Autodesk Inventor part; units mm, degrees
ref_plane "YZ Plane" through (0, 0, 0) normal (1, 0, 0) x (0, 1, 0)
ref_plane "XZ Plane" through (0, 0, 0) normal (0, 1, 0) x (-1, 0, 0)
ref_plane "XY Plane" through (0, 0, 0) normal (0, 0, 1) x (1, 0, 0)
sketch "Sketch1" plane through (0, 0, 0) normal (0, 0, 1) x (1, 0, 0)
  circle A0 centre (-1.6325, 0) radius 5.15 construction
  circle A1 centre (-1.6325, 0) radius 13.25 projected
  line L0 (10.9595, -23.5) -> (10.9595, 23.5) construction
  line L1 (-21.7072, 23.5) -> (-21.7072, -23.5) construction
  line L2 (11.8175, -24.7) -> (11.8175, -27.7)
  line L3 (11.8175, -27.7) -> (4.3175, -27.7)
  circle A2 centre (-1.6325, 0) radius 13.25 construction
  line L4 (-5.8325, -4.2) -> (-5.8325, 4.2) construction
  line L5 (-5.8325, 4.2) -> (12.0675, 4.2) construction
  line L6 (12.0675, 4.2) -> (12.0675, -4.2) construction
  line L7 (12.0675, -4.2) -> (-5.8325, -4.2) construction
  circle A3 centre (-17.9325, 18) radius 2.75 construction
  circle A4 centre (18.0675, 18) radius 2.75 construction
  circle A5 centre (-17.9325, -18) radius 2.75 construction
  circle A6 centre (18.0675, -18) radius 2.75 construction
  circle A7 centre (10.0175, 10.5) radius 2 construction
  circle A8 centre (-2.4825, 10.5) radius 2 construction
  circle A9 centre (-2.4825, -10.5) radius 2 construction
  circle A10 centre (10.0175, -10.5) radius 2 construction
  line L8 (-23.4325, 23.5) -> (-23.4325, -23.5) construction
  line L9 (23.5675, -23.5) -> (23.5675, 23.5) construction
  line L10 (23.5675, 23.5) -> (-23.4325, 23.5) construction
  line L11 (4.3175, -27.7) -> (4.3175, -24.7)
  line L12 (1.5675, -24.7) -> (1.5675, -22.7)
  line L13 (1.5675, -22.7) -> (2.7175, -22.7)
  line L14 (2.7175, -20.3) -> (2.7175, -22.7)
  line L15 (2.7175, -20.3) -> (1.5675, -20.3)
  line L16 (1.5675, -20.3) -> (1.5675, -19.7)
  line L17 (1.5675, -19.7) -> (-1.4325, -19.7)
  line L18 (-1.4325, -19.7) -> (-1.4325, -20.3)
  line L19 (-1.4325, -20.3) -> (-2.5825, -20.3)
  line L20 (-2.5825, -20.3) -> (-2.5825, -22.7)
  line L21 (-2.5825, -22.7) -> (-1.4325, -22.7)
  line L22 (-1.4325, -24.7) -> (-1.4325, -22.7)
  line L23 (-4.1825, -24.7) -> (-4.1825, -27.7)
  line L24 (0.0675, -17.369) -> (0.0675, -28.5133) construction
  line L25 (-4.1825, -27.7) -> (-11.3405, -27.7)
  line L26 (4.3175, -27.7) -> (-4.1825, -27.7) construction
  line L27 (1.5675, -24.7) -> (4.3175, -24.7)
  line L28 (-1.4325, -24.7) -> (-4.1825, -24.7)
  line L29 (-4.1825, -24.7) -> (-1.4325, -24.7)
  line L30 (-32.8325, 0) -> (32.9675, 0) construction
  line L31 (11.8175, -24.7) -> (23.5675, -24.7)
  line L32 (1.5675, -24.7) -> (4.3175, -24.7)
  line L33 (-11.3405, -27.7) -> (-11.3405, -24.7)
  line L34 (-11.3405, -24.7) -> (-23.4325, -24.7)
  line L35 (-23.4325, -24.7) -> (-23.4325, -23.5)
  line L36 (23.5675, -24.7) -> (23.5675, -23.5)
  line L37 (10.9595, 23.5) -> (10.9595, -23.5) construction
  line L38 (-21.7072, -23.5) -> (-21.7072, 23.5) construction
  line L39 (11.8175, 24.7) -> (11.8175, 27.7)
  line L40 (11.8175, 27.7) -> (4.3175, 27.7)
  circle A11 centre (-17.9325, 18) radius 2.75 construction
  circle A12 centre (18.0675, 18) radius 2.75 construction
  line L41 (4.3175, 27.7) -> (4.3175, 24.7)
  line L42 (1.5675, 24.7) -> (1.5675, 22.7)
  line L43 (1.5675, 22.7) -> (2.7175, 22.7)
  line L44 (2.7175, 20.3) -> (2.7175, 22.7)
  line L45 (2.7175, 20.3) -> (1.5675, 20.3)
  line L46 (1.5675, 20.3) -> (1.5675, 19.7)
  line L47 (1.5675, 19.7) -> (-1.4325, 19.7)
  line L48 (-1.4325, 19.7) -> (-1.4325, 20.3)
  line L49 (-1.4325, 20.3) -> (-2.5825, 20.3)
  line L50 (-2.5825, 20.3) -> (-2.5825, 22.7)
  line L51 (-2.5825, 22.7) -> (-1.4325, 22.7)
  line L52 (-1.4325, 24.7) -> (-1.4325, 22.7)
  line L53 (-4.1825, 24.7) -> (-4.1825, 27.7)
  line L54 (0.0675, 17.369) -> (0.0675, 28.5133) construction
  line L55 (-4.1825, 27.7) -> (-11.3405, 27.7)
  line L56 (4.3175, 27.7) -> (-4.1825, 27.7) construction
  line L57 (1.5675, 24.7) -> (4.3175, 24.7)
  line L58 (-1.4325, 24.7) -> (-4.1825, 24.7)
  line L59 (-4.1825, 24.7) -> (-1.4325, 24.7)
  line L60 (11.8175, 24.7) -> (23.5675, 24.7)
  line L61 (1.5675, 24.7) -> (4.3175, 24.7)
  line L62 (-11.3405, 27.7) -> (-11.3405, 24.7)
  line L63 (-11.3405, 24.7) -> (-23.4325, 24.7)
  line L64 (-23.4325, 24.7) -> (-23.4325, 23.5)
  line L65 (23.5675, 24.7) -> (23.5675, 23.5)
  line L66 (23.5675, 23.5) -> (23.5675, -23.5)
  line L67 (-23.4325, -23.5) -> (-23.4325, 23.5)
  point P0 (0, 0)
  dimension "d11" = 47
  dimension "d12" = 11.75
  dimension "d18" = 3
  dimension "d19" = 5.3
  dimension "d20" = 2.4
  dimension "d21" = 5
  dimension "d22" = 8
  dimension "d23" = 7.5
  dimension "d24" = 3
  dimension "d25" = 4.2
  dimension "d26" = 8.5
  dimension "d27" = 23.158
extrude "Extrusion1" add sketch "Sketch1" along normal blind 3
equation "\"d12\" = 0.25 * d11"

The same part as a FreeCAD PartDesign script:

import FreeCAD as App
import Part
import Sketcher


def add_polygon(sketch, points):
    """Adds a closed chain of lines whose ends are joined by coincident constraints."""
    first, n = sketch.GeometryCount, len(points)
    for a, b in zip(points, points[1:] + points[:1]):
        sketch.addGeometry(Part.LineSegment(App.Vector(*a, 0), App.Vector(*b, 0)), False)
    for i in range(n):
        sketch.addConstraint(Sketcher.Constraint("Coincident", first + i, 2, first + (i + 1) % n, 1))

doc = App.newDocument("Part")
params = doc.addObject("Spreadsheet::Sheet", "Params")
for row, (alias, value) in enumerate([
    ("sketch1_width", "3 mm"),
    ("sketch1_width2", "7.5 mm"),
    ("sketch1_height", "2.4 mm"),
    ("sketch1_diameter", "26.5 mm"),
    ("sketch1_width3", "11.75 mm"),
    ("pad1_length", "3 mm"),
], start=1):
    params.set(f"A{row}", alias)
    params.set(f"B{row}", "=" + value)
    params.setAlias(f"B{row}", alias)

body = doc.addObject("PartDesign::Body", "Body")

# Sketch on XY plane
sketch1 = body.newObject("Sketcher::SketchObject", "Sketch")
sketch1.AttachmentSupport = (doc.getObject("XY_Plane"), [""])
sketch1.MapMode = "FlatFace"
add_polygon(sketch1, [(11.8, -27.7), (11.8, -24.7), (23.6, -24.7), (23.6, 24.7), (11.8, 24.7), (11.8, 27.7), (4.3, 27.7), (4.3, 24.7), (1.6, 24.7), (1.6, 22.7), (2.7, 22.7), (2.7, 20.3), (1.6, 20.3), (1.6, 19.7), (-1.4, 19.7), (-1.4, 20.3), (-2.6, 20.3), (-2.6, 22.7), (-1.4, 22.7), (-1.4, 24.7), (-4.2, 24.7), (-4.2, 27.7), (-11.3, 27.7), (-11.3, 24.7), (-23.4, 24.7), (-23.4, -24.7), (-11.3, -24.7), (-11.3, -27.7), (-4.2, -27.7), (-4.2, -24.7), (-1.4, -24.7), (-1.4, -22.7), (-2.6, -22.7), (-2.6, -20.3), (-1.4, -20.3), (-1.4, -19.7), (1.6, -19.7), (1.6, -20.3), (2.7, -20.3), (2.7, -22.7), (1.6, -22.7), (1.6, -24.7), (4.3, -24.7), (4.3, -27.7)])  # lines 0-43
sketch1.addGeometry(Part.Circle(App.Vector(-1.6, 0, 0), App.Vector(0, 0, 1), 13.2), False)  # 44
sketch1.addConstraint(Sketcher.Constraint("Vertical", 0))
sketch1.addConstraint(Sketcher.Constraint("Horizontal", 1))
sketch1.addConstraint(Sketcher.Constraint("Vertical", 2))
sketch1.addConstraint(Sketcher.Constraint("Horizontal", 3))
sketch1.addConstraint(Sketcher.Constraint("Vertical", 4))
sketch1.addConstraint(Sketcher.Constraint("Horizontal", 5))
sketch1.addConstraint(Sketcher.Constraint("Vertical", 6))
sketch1.addConstraint(Sketcher.Constraint("Horizontal", 7))
sketch1.addConstraint(Sketcher.Constraint("Vertical", 8))
sketch1.addConstraint(Sketcher.Constraint("Horizontal", 9))
sketch1.addConstraint(Sketcher.Constraint("Vertical", 10))
sketch1.addConstraint(Sketcher.Constraint("Horizontal", 11))
sketch1.addConstraint(Sketcher.Constraint("Vertical", 12))
sketch1.addConstraint(Sketcher.Constraint("Horizontal", 13))
sketch1.addConstraint(Sketcher.Constraint("Vertical", 14))
sketch1.addConstraint(Sketcher.Constraint("Horizontal", 15))
sketch1.addConstraint(Sketcher.Constraint("Vertical", 16))
sketch1.addConstraint(Sketcher.Constraint("Horizontal", 17))
sketch1.addConstraint(Sketcher.Constraint("Vertical", 18))
sketch1.addConstraint(Sketcher.Constraint("Horizontal", 19))
sketch1.addConstraint(Sketcher.Constraint("Vertical", 20))
sketch1.addConstraint(Sketcher.Constraint("Horizontal", 21))
sketch1.addConstraint(Sketcher.Constraint("Vertical", 22))
sketch1.addConstraint(Sketcher.Constraint("Horizontal", 23))
sketch1.addConstraint(Sketcher.Constraint("Vertical", 24))
sketch1.addConstraint(Sketcher.Constraint("Horizontal", 25))
sketch1.addConstraint(Sketcher.Constraint("Vertical", 26))
sketch1.addConstraint(Sketcher.Constraint("Horizontal", 27))
sketch1.addConstraint(Sketcher.Constraint("Vertical", 28))
sketch1.addConstraint(Sketcher.Constraint("Horizontal", 29))
sketch1.addConstraint(Sketcher.Constraint("Vertical", 30))
sketch1.addConstraint(Sketcher.Constraint("Horizontal", 31))
sketch1.addConstraint(Sketcher.Constraint("Vertical", 32))
sketch1.addConstraint(Sketcher.Constraint("Horizontal", 33))
sketch1.addConstraint(Sketcher.Constraint("Vertical", 34))
sketch1.addConstraint(Sketcher.Constraint("Horizontal", 35))
sketch1.addConstraint(Sketcher.Constraint("Vertical", 36))
sketch1.addConstraint(Sketcher.Constraint("Horizontal", 37))
sketch1.addConstraint(Sketcher.Constraint("Vertical", 38))
sketch1.addConstraint(Sketcher.Constraint("Horizontal", 39))
sketch1.addConstraint(Sketcher.Constraint("Vertical", 40))
sketch1.addConstraint(Sketcher.Constraint("Horizontal", 41))
sketch1.addConstraint(Sketcher.Constraint("Vertical", 42))
sketch1.addConstraint(Sketcher.Constraint("Horizontal", 43))
sketch1.addConstraint(Sketcher.Constraint("Symmetric", 0, 2, 3, 2, -1))
sketch1.addConstraint(Sketcher.Constraint("Symmetric", 22, 2, 25, 2, -1))
sketch1.addConstraint(Sketcher.Constraint("Symmetric", 20, 2, 27, 2, -1))
sketch1.addConstraint(Sketcher.Constraint("Symmetric", 18, 2, 29, 2, -1))
sketch1.addConstraint(Sketcher.Constraint("Symmetric", 16, 2, 31, 2, -1))
sketch1.addConstraint(Sketcher.Constraint("Symmetric", 14, 2, 33, 2, -1))
sketch1.addConstraint(Sketcher.Constraint("Symmetric", 12, 2, 35, 2, -1))
sketch1.addConstraint(Sketcher.Constraint("Symmetric", 10, 2, 37, 2, -1))
sketch1.addConstraint(Sketcher.Constraint("Symmetric", 8, 2, 39, 2, -1))
sketch1.addConstraint(Sketcher.Constraint("Symmetric", 6, 2, 41, 2, -1))
sketch1.addConstraint(Sketcher.Constraint("PointOnObject", 44, 3, -1))
sketch1.addConstraint(Sketcher.Constraint("Horizontal", 3, 2, 6, 2))
sketch1.addConstraint(Sketcher.Constraint("Horizontal", 11, 2, 14, 2))
sketch1.addConstraint(Sketcher.Constraint("Horizontal", 9, 2, 16, 2))
sketch1.addConstraint(Sketcher.Constraint("Horizontal", 7, 2, 18, 2))
sketch1.addConstraint(Sketcher.Constraint("Horizontal", 5, 2, 20, 2))
sketch1.addConstraint(Sketcher.Constraint("Horizontal", 19, 2, 22, 2))
sketch1.addConstraint(Sketcher.Constraint("Horizontal", 27, 2, 42, 2))
sketch1.addConstraint(Sketcher.Constraint("Vertical", 8, 2, 11, 2))
sketch1.addConstraint(Sketcher.Constraint("Vertical", 14, 2, 17, 2))
sketch1.addConstraint(Sketcher.Constraint("Equal", 11, 15))
sketch1.addConstraint(Sketcher.Constraint("Equal", 7, 19))
sketch1.addConstraint(Sketcher.Constraint("Equal", 35, 0))
sketch1.addConstraint(Sketcher.Constraint("DistanceX", 13, 2, 13, 1, 3.0))
sketch1.addConstraint(Sketcher.Constraint("DistanceX", 5, 2, 5, 1, 7.5))
sketch1.addConstraint(Sketcher.Constraint("DistanceY", 10, 2, 10, 1, 2.4))
sketch1.addConstraint(Sketcher.Constraint("DistanceY", 8, 2, 5, 2, 5.0))
sketch1.addConstraint(Sketcher.Constraint("DistanceY", 12, 2, 8, 2, 3.0))
sketch1.addConstraint(Sketcher.Constraint("DistanceX", 24, 2, 1, 2, 47.0))
sketch1.addConstraint(Sketcher.Constraint("Diameter", 44, 26.5))
sketch1.addConstraint(Sketcher.Constraint("DistanceX", 1, 1, 1, 2, 11.75))
sketch1.addConstraint(Sketcher.Constraint("DistanceY", 2, 1, 2, 2, 49.4))
sketch1.addConstraint(Sketcher.Constraint("DistanceX", 7, 2, 2, 2, 22.0))
sketch1.addConstraint(Sketcher.Constraint("DistanceX", 25, 2, 0, 2, 23.158))
sketch1.addConstraint(Sketcher.Constraint("DistanceX", 9, 1, 9, 2, 1.15))
sketch1.addConstraint(Sketcher.Constraint("DistanceX", 44, 3, 1, 2, 25.2))
sketch1.addConstraint(Sketcher.Constraint("DistanceX", 44, 3, -1, 1, 1.6325))
sketch1.setExpression("Constraints[111]", "Params.sketch1_width")
sketch1.setExpression("Constraints[112]", "Params.sketch1_width2")
sketch1.setExpression("Constraints[113]", "Params.sketch1_height")
sketch1.setExpression("Constraints[117]", "Params.sketch1_diameter")
sketch1.setExpression("Constraints[118]", "Params.sketch1_width3")
pad1 = body.newObject("PartDesign::Pad", "Pad")
pad1.Profile = sketch1
pad1.setExpression("Length", "Params.pad1_length")

doc.recompute()
